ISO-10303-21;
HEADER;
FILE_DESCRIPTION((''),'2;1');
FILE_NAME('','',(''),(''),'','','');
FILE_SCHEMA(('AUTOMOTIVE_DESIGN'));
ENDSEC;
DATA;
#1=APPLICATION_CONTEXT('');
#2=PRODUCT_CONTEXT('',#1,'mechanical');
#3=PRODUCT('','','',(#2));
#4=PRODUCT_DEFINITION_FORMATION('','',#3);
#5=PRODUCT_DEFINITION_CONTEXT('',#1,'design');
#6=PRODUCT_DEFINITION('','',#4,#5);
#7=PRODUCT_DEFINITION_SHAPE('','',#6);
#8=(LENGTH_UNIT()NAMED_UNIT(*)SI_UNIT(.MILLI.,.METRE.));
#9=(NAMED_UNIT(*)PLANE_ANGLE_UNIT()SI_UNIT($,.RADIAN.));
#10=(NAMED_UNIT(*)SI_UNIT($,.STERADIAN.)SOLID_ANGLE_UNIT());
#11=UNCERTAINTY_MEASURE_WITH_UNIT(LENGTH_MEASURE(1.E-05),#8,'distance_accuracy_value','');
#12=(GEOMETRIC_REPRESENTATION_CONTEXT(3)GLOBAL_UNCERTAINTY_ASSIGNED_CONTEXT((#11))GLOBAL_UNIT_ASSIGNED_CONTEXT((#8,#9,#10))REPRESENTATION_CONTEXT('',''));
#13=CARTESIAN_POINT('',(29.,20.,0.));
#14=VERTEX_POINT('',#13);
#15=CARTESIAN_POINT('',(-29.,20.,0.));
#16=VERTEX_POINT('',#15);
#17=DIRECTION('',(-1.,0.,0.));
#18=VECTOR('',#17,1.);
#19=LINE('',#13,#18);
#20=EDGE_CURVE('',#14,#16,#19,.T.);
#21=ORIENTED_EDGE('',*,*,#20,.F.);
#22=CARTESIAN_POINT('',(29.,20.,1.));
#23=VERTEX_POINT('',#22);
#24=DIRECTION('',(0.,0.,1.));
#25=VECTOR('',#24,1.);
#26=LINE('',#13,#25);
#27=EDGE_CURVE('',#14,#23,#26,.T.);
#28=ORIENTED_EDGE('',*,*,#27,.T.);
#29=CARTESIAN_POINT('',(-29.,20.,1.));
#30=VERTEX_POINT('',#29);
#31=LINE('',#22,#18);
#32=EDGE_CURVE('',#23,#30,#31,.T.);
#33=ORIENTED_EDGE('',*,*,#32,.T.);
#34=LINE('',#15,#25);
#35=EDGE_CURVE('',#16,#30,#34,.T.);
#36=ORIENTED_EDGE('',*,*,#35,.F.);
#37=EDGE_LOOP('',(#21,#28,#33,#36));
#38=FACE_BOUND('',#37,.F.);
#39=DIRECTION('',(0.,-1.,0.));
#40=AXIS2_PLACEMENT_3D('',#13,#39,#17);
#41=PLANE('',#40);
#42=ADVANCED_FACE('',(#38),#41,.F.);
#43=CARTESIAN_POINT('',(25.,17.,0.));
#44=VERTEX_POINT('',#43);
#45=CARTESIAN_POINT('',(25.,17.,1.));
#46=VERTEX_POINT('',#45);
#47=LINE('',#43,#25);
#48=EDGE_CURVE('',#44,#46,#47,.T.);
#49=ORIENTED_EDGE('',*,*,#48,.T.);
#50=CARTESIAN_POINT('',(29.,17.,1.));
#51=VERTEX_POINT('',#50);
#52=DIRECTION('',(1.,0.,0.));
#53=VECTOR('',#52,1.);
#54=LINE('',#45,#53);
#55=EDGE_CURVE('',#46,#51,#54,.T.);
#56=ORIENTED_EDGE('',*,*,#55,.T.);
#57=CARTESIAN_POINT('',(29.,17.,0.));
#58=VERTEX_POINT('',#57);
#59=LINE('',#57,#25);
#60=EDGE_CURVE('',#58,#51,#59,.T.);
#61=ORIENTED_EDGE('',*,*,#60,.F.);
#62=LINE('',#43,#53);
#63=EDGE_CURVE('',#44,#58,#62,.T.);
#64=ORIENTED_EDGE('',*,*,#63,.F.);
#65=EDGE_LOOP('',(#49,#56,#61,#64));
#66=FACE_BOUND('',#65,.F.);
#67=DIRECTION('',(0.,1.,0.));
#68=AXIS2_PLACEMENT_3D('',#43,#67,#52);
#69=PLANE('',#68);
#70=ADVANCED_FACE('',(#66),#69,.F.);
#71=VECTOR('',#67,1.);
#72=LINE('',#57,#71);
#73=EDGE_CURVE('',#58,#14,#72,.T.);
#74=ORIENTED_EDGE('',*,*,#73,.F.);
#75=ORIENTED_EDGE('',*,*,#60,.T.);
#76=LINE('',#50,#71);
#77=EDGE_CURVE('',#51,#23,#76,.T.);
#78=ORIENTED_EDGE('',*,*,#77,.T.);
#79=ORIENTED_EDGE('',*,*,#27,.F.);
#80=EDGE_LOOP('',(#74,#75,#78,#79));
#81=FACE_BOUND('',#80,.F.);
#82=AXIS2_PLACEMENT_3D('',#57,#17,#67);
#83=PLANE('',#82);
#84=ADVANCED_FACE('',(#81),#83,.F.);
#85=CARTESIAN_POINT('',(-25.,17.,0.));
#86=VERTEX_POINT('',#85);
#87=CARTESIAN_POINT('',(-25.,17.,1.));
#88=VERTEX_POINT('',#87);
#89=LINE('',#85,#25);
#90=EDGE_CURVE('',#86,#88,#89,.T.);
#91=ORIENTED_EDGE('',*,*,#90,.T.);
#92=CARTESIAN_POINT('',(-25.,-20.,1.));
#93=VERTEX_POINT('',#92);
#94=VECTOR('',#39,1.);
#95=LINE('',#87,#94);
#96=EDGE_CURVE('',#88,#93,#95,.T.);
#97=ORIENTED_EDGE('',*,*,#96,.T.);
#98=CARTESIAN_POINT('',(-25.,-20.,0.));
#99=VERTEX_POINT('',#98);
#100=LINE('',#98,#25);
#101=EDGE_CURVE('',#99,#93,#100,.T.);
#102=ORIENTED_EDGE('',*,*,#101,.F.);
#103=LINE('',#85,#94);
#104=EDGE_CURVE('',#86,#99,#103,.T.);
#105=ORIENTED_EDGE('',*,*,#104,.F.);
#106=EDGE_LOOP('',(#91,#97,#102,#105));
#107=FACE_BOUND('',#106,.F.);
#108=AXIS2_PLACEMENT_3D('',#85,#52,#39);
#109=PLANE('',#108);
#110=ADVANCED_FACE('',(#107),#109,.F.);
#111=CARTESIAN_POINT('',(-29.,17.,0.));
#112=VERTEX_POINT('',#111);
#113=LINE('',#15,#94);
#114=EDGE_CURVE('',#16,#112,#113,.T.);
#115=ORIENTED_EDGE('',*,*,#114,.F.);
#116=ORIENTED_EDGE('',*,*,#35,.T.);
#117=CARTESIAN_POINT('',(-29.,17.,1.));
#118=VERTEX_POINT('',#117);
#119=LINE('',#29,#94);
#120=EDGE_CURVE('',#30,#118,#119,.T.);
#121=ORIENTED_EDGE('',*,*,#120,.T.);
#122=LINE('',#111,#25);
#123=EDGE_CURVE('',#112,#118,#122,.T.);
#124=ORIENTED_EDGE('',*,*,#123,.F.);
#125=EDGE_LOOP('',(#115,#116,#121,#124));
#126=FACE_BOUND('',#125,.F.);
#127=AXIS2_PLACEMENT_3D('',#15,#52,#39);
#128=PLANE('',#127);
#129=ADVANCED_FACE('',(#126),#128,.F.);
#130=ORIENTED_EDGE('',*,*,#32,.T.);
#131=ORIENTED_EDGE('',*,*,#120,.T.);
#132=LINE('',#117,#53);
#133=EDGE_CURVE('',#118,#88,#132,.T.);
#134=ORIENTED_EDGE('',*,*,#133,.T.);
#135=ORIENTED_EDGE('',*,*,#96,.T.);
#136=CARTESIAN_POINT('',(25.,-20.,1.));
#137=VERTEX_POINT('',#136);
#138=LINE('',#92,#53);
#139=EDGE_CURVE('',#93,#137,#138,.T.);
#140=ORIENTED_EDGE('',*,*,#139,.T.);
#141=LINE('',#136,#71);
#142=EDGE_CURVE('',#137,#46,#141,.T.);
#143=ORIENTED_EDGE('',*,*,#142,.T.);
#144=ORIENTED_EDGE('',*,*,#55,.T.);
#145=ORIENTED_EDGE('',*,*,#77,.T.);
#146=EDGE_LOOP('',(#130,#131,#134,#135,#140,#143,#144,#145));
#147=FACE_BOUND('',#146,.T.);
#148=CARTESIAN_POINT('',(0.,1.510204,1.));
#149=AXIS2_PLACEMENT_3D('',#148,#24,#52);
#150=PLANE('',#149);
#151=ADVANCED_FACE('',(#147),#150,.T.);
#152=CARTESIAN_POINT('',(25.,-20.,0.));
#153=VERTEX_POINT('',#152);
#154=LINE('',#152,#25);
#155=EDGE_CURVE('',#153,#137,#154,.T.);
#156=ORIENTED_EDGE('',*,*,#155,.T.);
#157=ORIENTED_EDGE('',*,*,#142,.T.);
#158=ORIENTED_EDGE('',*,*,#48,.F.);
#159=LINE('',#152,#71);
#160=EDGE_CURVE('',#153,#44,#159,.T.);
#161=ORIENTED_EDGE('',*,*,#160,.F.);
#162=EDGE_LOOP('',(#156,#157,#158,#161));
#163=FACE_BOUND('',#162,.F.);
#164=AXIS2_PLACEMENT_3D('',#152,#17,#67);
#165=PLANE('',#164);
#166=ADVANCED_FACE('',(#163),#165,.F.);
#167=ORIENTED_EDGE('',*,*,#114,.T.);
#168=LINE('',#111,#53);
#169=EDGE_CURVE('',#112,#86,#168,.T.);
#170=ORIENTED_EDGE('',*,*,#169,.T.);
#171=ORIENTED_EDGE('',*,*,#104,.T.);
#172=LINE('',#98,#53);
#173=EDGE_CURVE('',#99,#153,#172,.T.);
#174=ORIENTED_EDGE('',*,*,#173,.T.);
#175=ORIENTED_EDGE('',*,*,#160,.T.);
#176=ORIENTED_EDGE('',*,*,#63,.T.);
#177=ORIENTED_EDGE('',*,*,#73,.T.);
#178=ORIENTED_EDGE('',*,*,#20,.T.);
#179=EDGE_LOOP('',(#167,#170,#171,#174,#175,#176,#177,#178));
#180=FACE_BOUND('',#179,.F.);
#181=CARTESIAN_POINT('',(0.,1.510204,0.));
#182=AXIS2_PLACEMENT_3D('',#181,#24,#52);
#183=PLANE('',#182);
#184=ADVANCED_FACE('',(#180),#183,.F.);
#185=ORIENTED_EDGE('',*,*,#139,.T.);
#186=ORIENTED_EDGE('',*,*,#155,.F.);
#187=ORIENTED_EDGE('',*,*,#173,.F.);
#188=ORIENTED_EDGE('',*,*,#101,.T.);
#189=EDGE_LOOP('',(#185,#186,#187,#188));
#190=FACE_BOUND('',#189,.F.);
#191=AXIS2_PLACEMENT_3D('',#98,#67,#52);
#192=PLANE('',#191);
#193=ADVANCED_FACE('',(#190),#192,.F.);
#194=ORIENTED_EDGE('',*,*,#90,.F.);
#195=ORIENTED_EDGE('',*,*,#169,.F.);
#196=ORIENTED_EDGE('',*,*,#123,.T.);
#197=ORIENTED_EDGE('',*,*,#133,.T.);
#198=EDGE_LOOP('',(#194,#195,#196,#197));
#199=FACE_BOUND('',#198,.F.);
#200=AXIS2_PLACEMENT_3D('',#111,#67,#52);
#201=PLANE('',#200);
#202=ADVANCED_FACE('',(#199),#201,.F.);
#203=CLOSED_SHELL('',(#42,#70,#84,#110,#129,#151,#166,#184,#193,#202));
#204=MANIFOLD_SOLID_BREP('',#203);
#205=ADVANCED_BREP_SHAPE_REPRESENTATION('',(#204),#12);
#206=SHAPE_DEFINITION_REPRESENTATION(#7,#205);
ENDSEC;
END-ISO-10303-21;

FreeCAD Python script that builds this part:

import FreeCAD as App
import Part
import Sketcher

V = App.Vector
Q = App.Units.Quantity

doc = App.newDocument("Part")
body = doc.addObject("PartDesign::Body", "Body")

# Sketch on XY plane
sketch1 = body.newObject("Sketcher::SketchObject", "Sketch")
sketch1.AttachmentSupport = (doc.getObject("XY_Plane"), [""])
sketch1.MapMode = "FlatFace"
sketch1.addGeometry([
    Part.LineSegment(V(-25, -20, 0), V(25, -20, 0)),  # 0
    Part.LineSegment(V(25, -20, 0), V(25, 17, 0)),  # 1
    Part.LineSegment(V(25, 17, 0), V(29, 17, 0)),  # 2
    Part.LineSegment(V(29, 17, 0), V(29, 20, 0)),  # 3
    Part.LineSegment(V(29, 20, 0), V(-29, 20, 0)),  # 4
    Part.LineSegment(V(-29, 20, 0), V(-29, 17, 0)),  # 5
    Part.LineSegment(V(-29, 17, 0), V(-25, 17, 0)),  # 6
    Part.LineSegment(V(-25, 17, 0), V(-25, -20, 0)),  # 7
], False)
sketch1.addConstraint([
    Sketcher.Constraint("Coincident", 0, 2, 1, 1),
    Sketcher.Constraint("Coincident", 1, 2, 2, 1),
    Sketcher.Constraint("Coincident", 2, 2, 3, 1),
    Sketcher.Constraint("Coincident", 3, 2, 4, 1),
    Sketcher.Constraint("Coincident", 4, 2, 5, 1),
    Sketcher.Constraint("Coincident", 5, 2, 6, 1),
    Sketcher.Constraint("Coincident", 6, 2, 7, 1),
    Sketcher.Constraint("Coincident", 7, 2, 0, 1),
    Sketcher.Constraint("Horizontal", 0),
    Sketcher.Constraint("Vertical", 1),
    Sketcher.Constraint("Horizontal", 2),
    Sketcher.Constraint("Vertical", 3),
    Sketcher.Constraint("Horizontal", 4),
    Sketcher.Constraint("Vertical", 5),
    Sketcher.Constraint("Horizontal", 6),
    Sketcher.Constraint("Vertical", 7),
    Sketcher.Constraint("Symmetric", 2, 2, 5, 2, -2),
    Sketcher.Constraint("Equal", 2, 6),
    Sketcher.Constraint("DistanceX", 0, 1, 0, 2, Q("50 mm")),
    Sketcher.Constraint("DistanceX", 2, 1, 2, 2, Q("4 mm")),
    Sketcher.Constraint("DistanceY", 1, 1, 1, 2, Q("37 mm")),
    Sketcher.Constraint("DistanceY", 3, 1, 3, 2, Q("3 mm")),
    Sketcher.Constraint("DistanceY", 0, 2, -1, 1, Q("20 mm")),
])
pad1 = body.newObject("PartDesign::Pad", "Pad")
pad1.Profile = sketch1
pad1.Length = 1

doc.recompute()
